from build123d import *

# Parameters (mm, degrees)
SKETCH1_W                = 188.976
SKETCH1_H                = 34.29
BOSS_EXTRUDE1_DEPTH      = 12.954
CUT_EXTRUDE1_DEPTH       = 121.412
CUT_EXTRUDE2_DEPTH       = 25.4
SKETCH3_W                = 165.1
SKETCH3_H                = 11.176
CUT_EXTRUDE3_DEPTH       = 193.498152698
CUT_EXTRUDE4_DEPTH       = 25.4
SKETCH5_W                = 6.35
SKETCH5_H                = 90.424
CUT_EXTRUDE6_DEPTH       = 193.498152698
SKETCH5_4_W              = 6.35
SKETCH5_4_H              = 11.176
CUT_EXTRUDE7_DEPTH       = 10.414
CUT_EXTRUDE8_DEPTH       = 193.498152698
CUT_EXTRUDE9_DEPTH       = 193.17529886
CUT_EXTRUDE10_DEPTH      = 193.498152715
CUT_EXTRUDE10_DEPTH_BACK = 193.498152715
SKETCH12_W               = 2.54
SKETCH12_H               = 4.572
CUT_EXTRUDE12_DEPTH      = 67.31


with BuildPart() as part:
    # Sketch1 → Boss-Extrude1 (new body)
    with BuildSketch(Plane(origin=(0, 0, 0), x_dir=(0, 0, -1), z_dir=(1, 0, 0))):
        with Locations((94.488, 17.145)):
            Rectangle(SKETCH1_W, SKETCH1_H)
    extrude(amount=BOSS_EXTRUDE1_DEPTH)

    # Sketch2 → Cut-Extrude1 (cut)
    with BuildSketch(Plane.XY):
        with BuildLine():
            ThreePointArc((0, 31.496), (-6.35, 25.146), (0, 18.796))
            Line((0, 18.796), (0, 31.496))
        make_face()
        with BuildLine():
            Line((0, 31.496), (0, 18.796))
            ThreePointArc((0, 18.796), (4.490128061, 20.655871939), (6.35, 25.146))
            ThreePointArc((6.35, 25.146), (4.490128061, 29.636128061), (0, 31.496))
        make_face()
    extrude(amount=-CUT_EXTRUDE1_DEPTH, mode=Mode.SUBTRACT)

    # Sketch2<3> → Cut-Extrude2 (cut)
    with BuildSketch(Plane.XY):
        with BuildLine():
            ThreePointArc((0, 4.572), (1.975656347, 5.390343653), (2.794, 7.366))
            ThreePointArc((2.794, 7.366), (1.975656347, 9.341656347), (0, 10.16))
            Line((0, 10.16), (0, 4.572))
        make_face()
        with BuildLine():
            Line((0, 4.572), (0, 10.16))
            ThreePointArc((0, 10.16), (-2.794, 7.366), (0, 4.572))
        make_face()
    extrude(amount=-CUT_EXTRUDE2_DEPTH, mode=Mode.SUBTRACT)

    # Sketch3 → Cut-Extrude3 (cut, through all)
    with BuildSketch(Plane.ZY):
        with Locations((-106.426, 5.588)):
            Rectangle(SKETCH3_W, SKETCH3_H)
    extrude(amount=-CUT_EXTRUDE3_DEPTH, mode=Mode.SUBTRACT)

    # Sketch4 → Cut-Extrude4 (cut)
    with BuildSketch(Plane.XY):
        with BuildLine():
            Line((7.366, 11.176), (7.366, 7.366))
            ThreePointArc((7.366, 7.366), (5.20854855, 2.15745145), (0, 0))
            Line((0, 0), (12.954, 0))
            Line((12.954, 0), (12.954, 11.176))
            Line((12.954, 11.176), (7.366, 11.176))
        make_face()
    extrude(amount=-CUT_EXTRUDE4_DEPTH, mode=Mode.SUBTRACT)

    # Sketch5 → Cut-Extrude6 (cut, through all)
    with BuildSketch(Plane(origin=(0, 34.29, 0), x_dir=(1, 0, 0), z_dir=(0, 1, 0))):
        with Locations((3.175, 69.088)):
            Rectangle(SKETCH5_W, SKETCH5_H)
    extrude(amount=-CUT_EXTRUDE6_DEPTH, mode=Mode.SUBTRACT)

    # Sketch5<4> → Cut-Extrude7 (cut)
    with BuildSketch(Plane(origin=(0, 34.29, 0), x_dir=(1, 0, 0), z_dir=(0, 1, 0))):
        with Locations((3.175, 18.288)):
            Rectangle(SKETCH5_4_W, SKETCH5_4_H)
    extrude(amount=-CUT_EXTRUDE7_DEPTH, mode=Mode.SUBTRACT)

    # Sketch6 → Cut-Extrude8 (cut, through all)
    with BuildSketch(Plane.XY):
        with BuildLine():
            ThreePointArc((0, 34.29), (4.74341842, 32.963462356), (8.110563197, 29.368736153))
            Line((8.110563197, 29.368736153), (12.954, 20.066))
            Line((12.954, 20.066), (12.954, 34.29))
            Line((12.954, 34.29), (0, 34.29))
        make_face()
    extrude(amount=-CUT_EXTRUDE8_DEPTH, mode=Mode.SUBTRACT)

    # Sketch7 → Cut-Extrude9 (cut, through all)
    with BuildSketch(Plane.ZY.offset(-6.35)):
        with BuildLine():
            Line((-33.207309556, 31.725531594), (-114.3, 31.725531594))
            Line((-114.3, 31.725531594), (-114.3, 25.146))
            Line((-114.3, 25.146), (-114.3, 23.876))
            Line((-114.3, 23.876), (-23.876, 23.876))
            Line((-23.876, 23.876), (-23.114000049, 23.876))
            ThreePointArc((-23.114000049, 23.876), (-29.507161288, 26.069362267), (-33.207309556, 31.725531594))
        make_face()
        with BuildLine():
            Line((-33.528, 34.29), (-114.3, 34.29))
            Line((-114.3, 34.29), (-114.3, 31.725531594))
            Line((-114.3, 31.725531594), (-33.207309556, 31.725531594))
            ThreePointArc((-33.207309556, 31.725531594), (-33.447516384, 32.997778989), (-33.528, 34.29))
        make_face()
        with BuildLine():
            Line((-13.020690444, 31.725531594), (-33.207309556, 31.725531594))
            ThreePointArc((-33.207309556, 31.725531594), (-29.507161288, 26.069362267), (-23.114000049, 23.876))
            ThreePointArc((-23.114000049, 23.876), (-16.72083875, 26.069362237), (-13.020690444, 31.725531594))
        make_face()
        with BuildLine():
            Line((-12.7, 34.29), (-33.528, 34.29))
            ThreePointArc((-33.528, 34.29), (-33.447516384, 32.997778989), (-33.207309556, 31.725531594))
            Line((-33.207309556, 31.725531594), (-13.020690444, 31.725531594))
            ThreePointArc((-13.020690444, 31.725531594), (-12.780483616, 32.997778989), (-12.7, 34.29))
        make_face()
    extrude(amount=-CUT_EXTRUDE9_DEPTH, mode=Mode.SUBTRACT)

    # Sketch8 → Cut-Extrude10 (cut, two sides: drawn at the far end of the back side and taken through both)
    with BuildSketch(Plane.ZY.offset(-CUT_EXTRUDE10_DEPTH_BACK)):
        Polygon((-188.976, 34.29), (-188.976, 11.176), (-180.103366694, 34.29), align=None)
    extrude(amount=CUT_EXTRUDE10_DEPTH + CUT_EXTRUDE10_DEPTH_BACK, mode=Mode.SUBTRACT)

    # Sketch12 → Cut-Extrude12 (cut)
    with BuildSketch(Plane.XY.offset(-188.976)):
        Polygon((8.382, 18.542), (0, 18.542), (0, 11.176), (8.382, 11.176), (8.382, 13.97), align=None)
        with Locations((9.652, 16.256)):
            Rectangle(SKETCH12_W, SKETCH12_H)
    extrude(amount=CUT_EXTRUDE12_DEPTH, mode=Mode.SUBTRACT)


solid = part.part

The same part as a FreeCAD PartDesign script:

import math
import FreeCAD as App
import Part
import Sketcher
from FreeCAD import Vector
Q = App.Units.Quantity


def add_polygon(sketch, points):
    """Adds a closed chain of lines whose ends are joined by coincident constraints."""
    first, n = sketch.GeometryCount, len(points)
    for a, b in zip(points, points[1:] + points[:1]):
        sketch.addGeometry(Part.LineSegment(App.Vector(*a, 0), App.Vector(*b, 0)), False)
    for i in range(n):
        sketch.addConstraint(Sketcher.Constraint("Coincident", first + i, 2, first + (i + 1) % n, 1))

doc = App.newDocument("Part")
body = doc.addObject("PartDesign::Body", "Body")

# Sketch on YZ plane
sketch1 = doc.addObject("Sketcher::SketchObject", "Sketch")
body.addObject(sketch1)
sketch1.AttachmentSupport = (doc.YZ_Plane, [""])
sketch1.MapMode = "FlatFace"
add_polygon(sketch1, [(34, 0), (0, 0), (0, -189), (34, -189)])  # lines 0-3
sketch1.addConstraint([
    Sketcher.Constraint("Horizontal", 0),
    Sketcher.Constraint("Vertical", 1),
    Sketcher.Constraint("Horizontal", 2),
    Sketcher.Constraint("Vertical", 3),
    Sketcher.Constraint("Coincident", 0, 2, -1, 1),
    Sketcher.Constraint("DistanceX", 0, 2, 0, 1, Q("1.35 in")),
    Sketcher.Constraint("DistanceY", 1, 2, 1, 1, Q("7.44 in")),
])
pad1 = doc.addObject("PartDesign::Pad", "Pad")
body.addObject(pad1)
pad1.Profile = sketch1
pad1.Length = Q("0.51 in")

# Sketch on XY plane
sketch2 = doc.addObject("Sketcher::SketchObject", "Sketch001")
body.addObject(sketch2)
sketch2.AttachmentSupport = (doc.XY_Plane, [""])
sketch2.MapMode = "FlatFace"
sketch2.addGeometry([
    Part.ArcOfCircle(Part.Circle(Vector(0, 25, 0), Vector(0, 0, 1), 6), math.radians(90), math.radians(270)),
    Part.ArcOfCircle(Part.Circle(Vector(0, 25, 0), Vector(0, 0, 1), 6), math.radians(-90), math.radians(0)),
    Part.ArcOfCircle(Part.Circle(Vector(0, 25, 0), Vector(0, 0, 1), 6), math.radians(0), math.radians(90)),
], False)
sketch2.addConstraint([
    Sketcher.Constraint("Tangent", 0, 2, 1, 1),
    Sketcher.Constraint("Tangent", 1, 2, 2, 1),
    Sketcher.Constraint("Tangent", 2, 2, 0, 1),
    Sketcher.Constraint("PointOnObject", 0, 3, -2),
    Sketcher.Constraint("PointOnObject", 0, 2, -2),
    Sketcher.Constraint("PointOnObject", 2, 2, -2),
    Sketcher.Constraint("Horizontal", 2, 3, 1, 2),
    Sketcher.Constraint("Radius", 0, Q("0.25 in")),
    Sketcher.Constraint("DistanceY", -1, 1, 0, 3, Q("0.99 in")),
])
pocket1 = doc.addObject("PartDesign::Pocket", "Pocket")
body.addObject(pocket1)
pocket1.Profile = sketch2
pocket1.Length = Q("4.78 in")

# Sketch on XY plane
sketch3 = doc.addObject("Sketcher::SketchObject", "Sketch002")
body.addObject(sketch3)
sketch3.AttachmentSupport = (doc.XY_Plane, [""])
sketch3.MapMode = "FlatFace"
sketch3.addGeometry([
    Part.ArcOfCircle(Part.Circle(Vector(0, 7.4, 0), Vector(0, 0, 1), 2.8), math.radians(-90), math.radians(0)),
    Part.ArcOfCircle(Part.Circle(Vector(0, 7.4, 0), Vector(0, 0, 1), 2.8), math.radians(0), math.radians(90)),
    Part.ArcOfCircle(Part.Circle(Vector(0, 7.4, 0), Vector(0, 0, 1), 2.8), math.radians(90), math.radians(270)),
], False)
sketch3.addConstraint([
    Sketcher.Constraint("Tangent", 0, 2, 1, 1),
    Sketcher.Constraint("Tangent", 1, 2, 2, 1),
    Sketcher.Constraint("Tangent", 2, 2, 0, 1),
    Sketcher.Constraint("PointOnObject", 0, 3, -2),
    Sketcher.Constraint("PointOnObject", 1, 2, -2),
    Sketcher.Constraint("PointOnObject", 2, 2, -2),
    Sketcher.Constraint("Horizontal", 2, 3, 0, 2),
    Sketcher.Constraint("Radius", 0, Q("0.11 in")),
    Sketcher.Constraint("DistanceY", -1, 1, 1, 2, Q("0.4 in")),
])
pocket2 = doc.addObject("PartDesign::Pocket", "Pocket001")
body.addObject(pocket2)
pocket2.Profile = sketch3
pocket2.Length = Q("1 in")

# Sketch on YZ plane
sketch4 = doc.addObject("Sketcher::SketchObject", "Sketch003")
body.addObject(sketch4)
sketch4.AttachmentSupport = (doc.YZ_Plane, [""])
sketch4.MapMode = "FlatFace"
add_polygon(sketch4, [(11, -189), (0, -189), (0, -24), (11, -24)])  # lines 0-3
sketch4.addConstraint([
    Sketcher.Constraint("Horizontal", 0),
    Sketcher.Constraint("Vertical", 1),
    Sketcher.Constraint("Horizontal", 2),
    Sketcher.Constraint("Vertical", 3),
    Sketcher.Constraint("PointOnObject", 0, 2, -2),
    Sketcher.Constraint("DistanceY", 1, 1, 1, 2, Q("6.5 in")),
    Sketcher.Constraint("DistanceX", 0, 2, 0, 1, Q("0.44 in")),
    Sketcher.Constraint("DistanceY", 0, 2, -1, 1, Q("7.44 in")),
])
pocket3 = doc.addObject("PartDesign::Pocket", "Pocket002")
body.addObject(pocket3)
pocket3.Profile = sketch4
pocket3.Type = "ThroughAll"
pocket3.Reversed = True

# Sketch on XY plane
sketch5 = doc.addObject("Sketcher::SketchObject", "Sketch004")
body.addObject(sketch5)
sketch5.AttachmentSupport = (doc.XY_Plane, [""])
sketch5.MapMode = "FlatFace"
sketch5.addGeometry([
    Part.LineSegment(Vector(7.4, 11.2, 0), Vector(7.4, 7.4, 0)),  # 0
    Part.ArcOfCircle(Part.Circle(Vector(0, 7.4, 0), Vector(0, 0, 1), 7.4), math.radians(-90), math.radians(0)),  # 1
    Part.LineSegment(Vector(0, 0, 0), Vector(13, 0, 0)),  # 2
    Part.LineSegment(Vector(13, 0, 0), Vector(13, 11.2, 0)),  # 3
    Part.LineSegment(Vector(13, 11.2, 0), Vector(7.4, 11.2, 0)),  # 4
], False)
sketch5.addConstraint([
    Sketcher.Constraint("Tangent", 0, 2, 1, 2),
    Sketcher.Constraint("Tangent", 1, 1, 2, 1),
    Sketcher.Constraint("Coincident", 2, 2, 3, 1),
    Sketcher.Constraint("Coincident", 3, 2, 4, 1),
    Sketcher.Constraint("Coincident", 4, 2, 0, 1),
    Sketcher.Constraint("Vertical", 0),
    Sketcher.Constraint("Horizontal", 2),
    Sketcher.Constraint("Vertical", 3),
    Sketcher.Constraint("Horizontal", 4),
    Sketcher.Constraint("Coincident", 1, 1, -1, 1),
    Sketcher.Constraint("Radius", 1, Q("0.29 in")),
    Sketcher.Constraint("DistanceX", 2, 1, 2, 2, Q("0.51 in")),
    Sketcher.Constraint("DistanceY", 0, 2, 0, 1, Q("0.15 in")),
])
pocket4 = doc.addObject("PartDesign::Pocket", "Pocket003")
body.addObject(pocket4)
pocket4.Profile = sketch5
pocket4.Length = Q("1 in")

# Sketch on XZ plane
sketch6 = doc.addObject("Sketcher::SketchObject", "Sketch005")
body.addObject(sketch6)
sketch6.AttachmentSupport = (doc.XZ_Plane, [""])
sketch6.MapMode = "FlatFace"
sketch6.AttachmentOffset = App.Placement(Vector(0, 0, -1.35 * 25.4), App.Rotation())
add_polygon(sketch6, [(0, -114), (0, -24), (6, -24), (6, -114)])  # lines 0-3
sketch6.addConstraint([
    Sketcher.Constraint("Vertical", 0),
    Sketcher.Constraint("Horizontal", 1),
    Sketcher.Constraint("Vertical", 2),
    Sketcher.Constraint("Horizontal", 3),
    Sketcher.Constraint("PointOnObject", 0, 2, -2),
    Sketcher.Constraint("DistanceX", 1, 1, 1, 2, Q("0.25 in")),
    Sketcher.Constraint("DistanceY", 0, 1, 0, 2, Q("3.56 in")),
    Sketcher.Constraint("DistanceY", 2, 2, -1, 1, Q("4.5 in")),
])
pocket5 = doc.addObject("PartDesign::Pocket", "Pocket004")
body.addObject(pocket5)
pocket5.Profile = sketch6
pocket5.Type = "ThroughAll"
pocket5.Reversed = True

# Sketch on XZ plane
sketch7 = doc.addObject("Sketcher::SketchObject", "Sketch006")
body.addObject(sketch7)
sketch7.AttachmentSupport = (doc.XZ_Plane, [""])
sketch7.MapMode = "FlatFace"
sketch7.AttachmentOffset = App.Placement(Vector(0, 0, -1.35 * 25.4), App.Rotation())
add_polygon(sketch7, [(0, -24), (0, -13), (6, -13), (6, -24)])  # lines 0-3
sketch7.addConstraint([
    Sketcher.Constraint("Vertical", 0),
    Sketcher.Constraint("Horizontal", 1),
    Sketcher.Constraint("Vertical", 2),
    Sketcher.Constraint("Horizontal", 3),
    Sketcher.Constraint("PointOnObject", 0, 2, -2),
    Sketcher.Constraint("DistanceX", 1, 1, 1, 2, Q("0.25 in")),
    Sketcher.Constraint("DistanceY", 0, 1, 0, 2, Q("0.44 in")),
    Sketcher.Constraint("DistanceY", 0, 2, -1, 1, Q("0.5 in")),
])
pocket6 = doc.addObject("PartDesign::Pocket", "Pocket005")
body.addObject(pocket6)
pocket6.Profile = sketch7
pocket6.Length = Q("0.41 in")
pocket6.Reversed = True

# Sketch on XY plane
sketch8 = doc.addObject("Sketcher::SketchObject", "Sketch007")
body.addObject(sketch8)
sketch8.AttachmentSupport = (doc.XY_Plane, [""])
sketch8.MapMode = "FlatFace"
sketch8.addGeometry([
    Part.ArcOfCircle(Part.Circle(Vector(0, 25, 0), Vector(0, 0, 1), 9), math.radians(28), math.radians(90)),
    Part.LineSegment(Vector(8, 29, 0), Vector(13, 20, 0)),
    Part.LineSegment(Vector(13, 20, 0), Vector(13, 34, 0)),
    Part.LineSegment(Vector(13, 34, 0), Vector(0, 34, 0)),
], False)
sketch8.addConstraint([
    Sketcher.Constraint("Tangent", 0, 1, 1, 1),
    Sketcher.Constraint("Coincident", 1, 2, 2, 1),
    Sketcher.Constraint("Coincident", 2, 2, 3, 1),
    Sketcher.Constraint("Tangent", 3, 2, 0, 2),
    Sketcher.Constraint("Vertical", 2),
    Sketcher.Constraint("Horizontal", 3),
    Sketcher.Constraint("PointOnObject", 0, 3, -2),
    Sketcher.Constraint("Radius", 0, Q("0.36 in")),
    Sketcher.Constraint("DistanceX", 3, 2, 3, 1, Q("0.51 in")),
    Sketcher.Constraint("DistanceY", 2, 1, 2, 2, Q("0.56 in")),
    Sketcher.Constraint("DistanceY", -1, 1, 0, 3, Q("0.99 in")),
])
pocket7 = doc.addObject("PartDesign::Pocket", "Pocket006")
body.addObject(pocket7)
pocket7.Profile = sketch8
pocket7.Type = "ThroughAll"

# Sketch on YZ plane
sketch9 = doc.addObject("Sketcher::SketchObject", "Sketch008")
body.addObject(sketch9)
sketch9.AttachmentSupport = (doc.YZ_Plane, [""])
sketch9.MapMode = "FlatFace"
sketch9.AttachmentOffset = App.Placement(Vector(0, 0, 0.25 * 25.4), App.Rotation())
sketch9.addGeometry([
    Part.LineSegment(Vector(23.9, -114.3, 0), Vector(23.9, -23.1, 0)),  # 0
    Part.ArcOfCircle(Part.Circle(Vector(34.3, -23.1, 0), Vector(0, 0, 1), 10.4), math.radians(104), math.radians(180)),  # 1
    Part.ArcOfCircle(Part.Circle(Vector(34.3, -23.1, 0), Vector(0, 0, 1), 10.4), math.radians(90), math.radians(104.26)),  # 2
    Part.LineSegment(Vector(34.3, -12.7, 0), Vector(34.3, -114.3, 0)),  # 3
    Part.LineSegment(Vector(34.3, -114.3, 0), Vector(23.9, -114.3, 0)),  # 4
], False)
sketch9.addConstraint([
    Sketcher.Constraint("Tangent", 0, 2, 1, 2),
    Sketcher.Constraint("Tangent", 1, 1, 2, 2),
    Sketcher.Constraint("Coincident", 2, 1, 3, 1),
    Sketcher.Constraint("Coincident", 3, 2, 4, 1),
    Sketcher.Constraint("Coincident", 4, 2, 0, 1),
    Sketcher.Constraint("Vertical", 0),
    Sketcher.Constraint("Vertical", 3),
    Sketcher.Constraint("Horizontal", 4),
    Sketcher.Constraint("Equal", 1, 2),
    Sketcher.Constraint("Vertical", 1, 3, 2, 1),
    Sketcher.Constraint("DistanceY", 3, 2, 3, 1, Q("4 in")),
    Sketcher.Constraint("Radius", 1, Q("0.41 in")),
    Sketcher.Constraint("DistanceY", 2, 1, -1, 1, Q("0.5 in")),
    Sketcher.Constraint("DistanceX", -1, 1, 1, 3, Q("1.35 in")),
    Sketcher.Constraint("DistanceX", -1, 1, 1, 1, Q("31.725532 mm")),
])
pocket8 = doc.addObject("PartDesign::Pocket", "Pocket007")
body.addObject(pocket8)
pocket8.Profile = sketch9
pocket8.Type = "ThroughAll"
pocket8.Reversed = True

# Sketch on YZ plane
sketch10 = doc.addObject("Sketcher::SketchObject", "Sketch009")
body.addObject(sketch10)
sketch10.AttachmentSupport = (doc.YZ_Plane, [""])
sketch10.MapMode = "FlatFace"
add_polygon(sketch10, [(34, -189), (11, -189), (34, -180)])  # lines 0-2
sketch10.addConstraint([
    Sketcher.Constraint("Horizontal", 0),
    Sketcher.Constraint("Vertical", 2),
    Sketcher.Constraint("Angle", 1, Q("21 deg")),
    Sketcher.Constraint("DistanceX", 0, 2, 0, 1, Q("0.91 in")),
    Sketcher.Constraint("DistanceX", -1, 1, 0, 2, Q("0.44 in")),
    Sketcher.Constraint("DistanceY", 0, 2, -1, 1, Q("7.44 in")),
])
pocket9 = doc.addObject("PartDesign::Pocket", "Pocket008")
body.addObject(pocket9)
pocket9.Profile = sketch10
pocket9.Type = "ThroughAll"
pocket9.Midplane = True

# Sketch on XY plane
sketch11 = doc.addObject("Sketcher::SketchObject", "Sketch010")
body.addObject(sketch11)
sketch11.AttachmentSupport = (doc.XY_Plane, [""])
sketch11.MapMode = "FlatFace"
sketch11.AttachmentOffset = App.Placement(Vector(0, 0, -7.44 * 25.4), App.Rotation())
add_polygon(sketch11, [(0, 18.5), (0, 11.2), (8.4, 11.2), (8.4, 14), (10.9, 14), (10.9, 18.5)])  # lines 0-5
sketch11.addConstraint([
    Sketcher.Constraint("Vertical", 0),
    Sketcher.Constraint("Horizontal", 1),
    Sketcher.Constraint("Vertical", 2),
    Sketcher.Constraint("Horizontal", 3),
    Sketcher.Constraint("Vertical", 4),
    Sketcher.Constraint("Horizontal", 5),
    Sketcher.Constraint("PointOnObject", 0, 2, -2),
    Sketcher.Constraint("DistanceX", 3, 1, 3, 2, Q("0.1 in")),
    Sketcher.Constraint("DistanceX", 1, 1, 1, 2, Q("0.33 in")),
    Sketcher.Constraint("DistanceY", 0, 2, 0, 1, Q("0.29 in")),
    Sketcher.Constraint("DistanceY", 2, 1, 2, 2, Q("0.11 in")),
    Sketcher.Constraint("DistanceY", -1, 1, 0, 2, Q("0.44 in")),
])
pocket10 = doc.addObject("PartDesign::Pocket", "Pocket009")
body.addObject(pocket10)
pocket10.Profile = sketch11
pocket10.Length = Q("2.65 in")
pocket10.Reversed = True

doc.recompute()
